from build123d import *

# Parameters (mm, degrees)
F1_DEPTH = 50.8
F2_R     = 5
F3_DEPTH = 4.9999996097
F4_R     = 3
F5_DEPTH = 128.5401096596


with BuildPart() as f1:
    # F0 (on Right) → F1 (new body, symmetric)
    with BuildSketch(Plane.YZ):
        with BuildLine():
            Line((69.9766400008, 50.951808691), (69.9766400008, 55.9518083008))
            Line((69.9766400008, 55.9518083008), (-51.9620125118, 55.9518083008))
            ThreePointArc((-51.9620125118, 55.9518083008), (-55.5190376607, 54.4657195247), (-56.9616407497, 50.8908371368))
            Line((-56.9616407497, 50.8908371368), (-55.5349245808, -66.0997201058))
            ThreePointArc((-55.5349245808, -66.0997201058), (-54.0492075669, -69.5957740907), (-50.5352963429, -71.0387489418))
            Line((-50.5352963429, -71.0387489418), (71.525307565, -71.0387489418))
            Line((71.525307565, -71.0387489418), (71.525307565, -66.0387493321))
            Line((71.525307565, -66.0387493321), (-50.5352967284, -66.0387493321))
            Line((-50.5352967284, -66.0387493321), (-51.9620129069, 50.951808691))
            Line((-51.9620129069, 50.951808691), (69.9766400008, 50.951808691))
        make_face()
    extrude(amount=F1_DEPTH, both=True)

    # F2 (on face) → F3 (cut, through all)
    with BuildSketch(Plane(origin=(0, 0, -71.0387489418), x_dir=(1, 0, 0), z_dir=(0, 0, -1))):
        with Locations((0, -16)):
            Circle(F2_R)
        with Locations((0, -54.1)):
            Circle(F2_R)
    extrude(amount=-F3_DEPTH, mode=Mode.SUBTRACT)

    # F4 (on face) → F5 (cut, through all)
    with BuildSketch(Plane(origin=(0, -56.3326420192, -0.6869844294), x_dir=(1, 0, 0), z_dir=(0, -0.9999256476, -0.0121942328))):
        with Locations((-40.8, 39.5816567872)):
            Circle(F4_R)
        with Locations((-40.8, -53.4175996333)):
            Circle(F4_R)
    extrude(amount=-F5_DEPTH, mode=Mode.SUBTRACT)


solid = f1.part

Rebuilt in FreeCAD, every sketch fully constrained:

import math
import FreeCAD as App
import Part
import Sketcher

V = App.Vector
Q = App.Units.Quantity

doc = App.newDocument("Part")
params = doc.addObject("Spreadsheet::Sheet", "Params")
for row, (alias, value) in enumerate([
    ("sketch1_radius", "5 mm"),
    ("pad1_length", "101.6 mm"),
    ("sketch2_diameter", "10 mm"),
    ("pocket1_length", "5 mm"),
    ("sketch3_diameter", "6 mm"),
], start=1):
    params.set(f"A{row}", alias)
    params.set(f"B{row}", "=" + value)
    params.setAlias(f"B{row}", alias)

body = doc.addObject("PartDesign::Body", "Body")

sketch1 = body.newObject("Sketcher::SketchObject", "Sketch")
sketch1.AttachmentSupport = (doc.getObject("YZ_Plane"), [""])
sketch1.MapMode = "FlatFace"
sketch1.addGeometry(Part.LineSegment(V(69.97664, 50.951809, 0), V(69.97664, 55.951808, 0)), False)
sketch1.addGeometry(Part.LineSegment(V(69.97664, 55.951808, 0), V(-51.962013, 55.951808, 0)), False)
sketch1.addGeometry(Part.ArcOfCircle(Part.Circle(V(-51.962013, 50.951808, 0), V(0, 0, 1), 5), math.radians(90), math.radians(180.698695)), False)
sketch1.addGeometry(Part.LineSegment(V(-56.961641, 50.890837, 0), V(-55.534925, -66.09972, 0)), False)
sketch1.addGeometry(Part.ArcOfCircle(Part.Circle(V(-50.535296, -66.038749, 0), V(0, 0, 1), 5), math.radians(-179.301305), math.radians(-90)), False)
sketch1.addGeometry(Part.LineSegment(V(-50.535296, -71.038749, 0), V(71.525308, -71.038749, 0)), False)
sketch1.addGeometry(Part.LineSegment(V(71.525308, -71.038749, 0), V(71.525308, -66.038749, 0)), False)
sketch1.addGeometry(Part.LineSegment(V(71.525308, -66.038749, 0), V(-50.535297, -66.038749, 0)), False)
sketch1.addGeometry(Part.LineSegment(V(-50.535297, -66.038749, 0), V(-51.962013, 50.951809, 0)), False)
sketch1.addGeometry(Part.LineSegment(V(-51.962013, 50.951809, 0), V(69.97664, 50.951809, 0)), False)
sketch1.addConstraint(Sketcher.Constraint("Coincident", 0, 2, 1, 1))
sketch1.addConstraint(Sketcher.Constraint("Tangent", 1, 2, 2, 1))
sketch1.addConstraint(Sketcher.Constraint("Tangent", 2, 2, 3, 1))
sketch1.addConstraint(Sketcher.Constraint("Tangent", 3, 2, 4, 1))
sketch1.addConstraint(Sketcher.Constraint("Tangent", 4, 2, 5, 1))
sketch1.addConstraint(Sketcher.Constraint("Coincident", 5, 2, 6, 1))
sketch1.addConstraint(Sketcher.Constraint("Coincident", 6, 2, 7, 1))
sketch1.addConstraint(Sketcher.Constraint("Coincident", 7, 2, 8, 1))
sketch1.addConstraint(Sketcher.Constraint("Coincident", 8, 2, 9, 1))
sketch1.addConstraint(Sketcher.Constraint("Coincident", 9, 2, 0, 1))
sketch1.addConstraint(Sketcher.Constraint("Vertical", 0))
sketch1.addConstraint(Sketcher.Constraint("Horizontal", 1))
sketch1.addConstraint(Sketcher.Constraint("Horizontal", 5))
sketch1.addConstraint(Sketcher.Constraint("Vertical", 6))
sketch1.addConstraint(Sketcher.Constraint("Horizontal", 7))
sketch1.addConstraint(Sketcher.Constraint("Horizontal", 9))
sketch1.addConstraint(Sketcher.Constraint("Coincident", 7, 2, 4, 3))
sketch1.addConstraint(Sketcher.Constraint("Coincident", 8, 2, 2, 3))
sketch1.addConstraint(Sketcher.Constraint("Equal", 2, 4))
sketch1.addConstraint(Sketcher.Constraint("Radius", 2, Q("5 mm")))
sketch1.addConstraint(Sketcher.Constraint("DistanceX", 1, 2, 1, 1, Q("121.938653 mm")))
sketch1.addConstraint(Sketcher.Constraint("DistanceX", 5, 1, 5, 2, Q("122.060604 mm")))
sketch1.addConstraint(Sketcher.Constraint("DistanceY", -1, 1, 2, 3, Q("50.951808 mm")))
sketch1.addConstraint(Sketcher.Constraint("DistanceY", 4, 3, -1, 1, Q("66.038749 mm")))
sketch1.addConstraint(Sketcher.Constraint("DistanceX", -1, 1, 0, 2, Q("69.97664 mm")))
sketch1.addConstraint(Sketcher.Constraint("DistanceY", 3, 2, -1, 1, Q("66.09972 mm")))
sketch1.setExpression("Constraints[19]", "Params.sketch1_radius")
pad1 = body.newObject("PartDesign::Pad", "Pad")
pad1.Profile = sketch1
pad1.setExpression("Length", "Params.pad1_length")
pad1.Midplane = True

sketch2 = body.newObject("Sketcher::SketchObject", "Sketch001")
sketch2.AttachmentSupport = (doc.getObject("XY_Plane"), [""])
sketch2.MapMode = "FlatFace"
sketch2.AttachmentOffset = App.Placement(V(0, 0, -71.038749), App.Rotation())
sketch2.addGeometry(Part.Circle(V(0, 16, 0), V(0, 0, 1), 5), False)
sketch2.addGeometry(Part.Circle(V(0, 54.1, 0), V(0, 0, 1), 5), False)
sketch2.addConstraint(Sketcher.Constraint("Equal", 0, 1))
sketch2.addConstraint(Sketcher.Constraint("PointOnObject", 0, 3, -2))
sketch2.addConstraint(Sketcher.Constraint("PointOnObject", 1, 3, -2))
sketch2.addConstraint(Sketcher.Constraint("Diameter", 0, Q("10 mm")))
sketch2.addConstraint(Sketcher.Constraint("DistanceY", -1, 1, 0, 3, Q("16 mm")))
sketch2.addConstraint(Sketcher.Constraint("DistanceY", -1, 1, 1, 3, Q("54.1 mm")))
sketch2.setExpression("Constraints[3]", "Params.sketch2_diameter")
pocket1 = body.newObject("PartDesign::Pocket", "Pocket")
pocket1.Profile = sketch2
pocket1.setExpression("Length", "Params.pocket1_length")
pocket1.Reversed = True

sketch3 = body.newObject("Sketcher::SketchObject", "Sketch002")
sketch3.Placement = App.Placement(V(0, -56.332642, -0.686984), App.Rotation(V(1, 0, 0), V(0, -0.012194233, 0.999925648), V(0, -0.999925648, -0.012194233), "ZXY"))
sketch3.addGeometry(Part.Circle(V(-40.8, 39.581657, 0), V(0, 0, 1), 3), False)
sketch3.addGeometry(Part.Circle(V(-40.8, -53.4176, 0), V(0, 0, 1), 3), False)
sketch3.addConstraint(Sketcher.Constraint("Equal", 0, 1))
sketch3.addConstraint(Sketcher.Constraint("Vertical", 0, 3, 1, 3))
sketch3.addConstraint(Sketcher.Constraint("Diameter", 0, Q("6 mm")))
sketch3.addConstraint(Sketcher.Constraint("DistanceX", 0, 3, -1, 1, Q("40.8 mm")))
sketch3.addConstraint(Sketcher.Constraint("DistanceY", 1, 3, -1, 1, Q("53.4176 mm")))
sketch3.addConstraint(Sketcher.Constraint("DistanceY", -1, 1, 0, 3, Q("39.581657 mm")))
sketch3.setExpression("Constraints[2]", "Params.sketch3_diameter")
pocket2 = body.newObject("PartDesign::Pocket", "Pocket001")
pocket2.Profile = sketch3
pocket2.Type = "ThroughAll"

doc.recompute()
